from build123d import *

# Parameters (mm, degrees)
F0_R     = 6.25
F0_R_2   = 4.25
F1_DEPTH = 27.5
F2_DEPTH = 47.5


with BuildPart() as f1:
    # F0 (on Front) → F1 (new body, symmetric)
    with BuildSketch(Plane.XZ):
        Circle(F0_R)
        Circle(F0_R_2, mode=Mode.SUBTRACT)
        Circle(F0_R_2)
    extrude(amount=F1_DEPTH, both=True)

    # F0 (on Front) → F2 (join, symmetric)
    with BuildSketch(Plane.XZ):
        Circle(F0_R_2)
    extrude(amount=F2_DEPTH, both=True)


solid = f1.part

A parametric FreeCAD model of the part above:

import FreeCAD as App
import Part
import Sketcher

V = App.Vector
Q = App.Units.Quantity

doc = App.newDocument("Part")
params = doc.addObject("Spreadsheet::Sheet", "Params")
for row, (alias, value) in enumerate([
    ("sketch1_diameter", "12.5 mm"),
    ("pad1_length", "55 mm"),
    ("sketch2_diameter", "8.5 mm"),
    ("pad2_length", "95 mm"),
], start=1):
    params.set(f"A{row}", alias)
    params.set(f"B{row}", "=" + value)
    params.setAlias(f"B{row}", alias)

body = doc.addObject("PartDesign::Body", "Body")

sketch1 = body.newObject("Sketcher::SketchObject", "Sketch")
sketch1.AttachmentSupport = (doc.getObject("XZ_Plane"), [""])
sketch1.MapMode = "FlatFace"
sketch1.addGeometry(Part.Circle(V(0, 0, 0), V(0, 0, 1), 6.25), False)
sketch1.addConstraint(Sketcher.Constraint("Coincident", 0, 3, -1, 1))
sketch1.addConstraint(Sketcher.Constraint("Diameter", 0, Q("12.5 mm")))
sketch1.setExpression("Constraints[1]", "Params.sketch1_diameter")
pad1 = body.newObject("PartDesign::Pad", "Pad")
pad1.Profile = sketch1
pad1.setExpression("Length", "Params.pad1_length")
pad1.Midplane = True

sketch2 = body.newObject("Sketcher::SketchObject", "Sketch001")
sketch2.AttachmentSupport = (doc.getObject("XZ_Plane"), [""])
sketch2.MapMode = "FlatFace"
sketch2.addGeometry(Part.Circle(V(0, 0, 0), V(0, 0, 1), 4.25), False)
sketch2.addConstraint(Sketcher.Constraint("Coincident", 0, 3, -1, 1))
sketch2.addConstraint(Sketcher.Constraint("Diameter", 0, Q("8.5 mm")))
sketch2.setExpression("Constraints[1]", "Params.sketch2_diameter")
pad2 = body.newObject("PartDesign::Pad", "Pad001")
pad2.Profile = sketch2
pad2.setExpression("Length", "Params.pad2_length")
pad2.Midplane = True

doc.recompute()
